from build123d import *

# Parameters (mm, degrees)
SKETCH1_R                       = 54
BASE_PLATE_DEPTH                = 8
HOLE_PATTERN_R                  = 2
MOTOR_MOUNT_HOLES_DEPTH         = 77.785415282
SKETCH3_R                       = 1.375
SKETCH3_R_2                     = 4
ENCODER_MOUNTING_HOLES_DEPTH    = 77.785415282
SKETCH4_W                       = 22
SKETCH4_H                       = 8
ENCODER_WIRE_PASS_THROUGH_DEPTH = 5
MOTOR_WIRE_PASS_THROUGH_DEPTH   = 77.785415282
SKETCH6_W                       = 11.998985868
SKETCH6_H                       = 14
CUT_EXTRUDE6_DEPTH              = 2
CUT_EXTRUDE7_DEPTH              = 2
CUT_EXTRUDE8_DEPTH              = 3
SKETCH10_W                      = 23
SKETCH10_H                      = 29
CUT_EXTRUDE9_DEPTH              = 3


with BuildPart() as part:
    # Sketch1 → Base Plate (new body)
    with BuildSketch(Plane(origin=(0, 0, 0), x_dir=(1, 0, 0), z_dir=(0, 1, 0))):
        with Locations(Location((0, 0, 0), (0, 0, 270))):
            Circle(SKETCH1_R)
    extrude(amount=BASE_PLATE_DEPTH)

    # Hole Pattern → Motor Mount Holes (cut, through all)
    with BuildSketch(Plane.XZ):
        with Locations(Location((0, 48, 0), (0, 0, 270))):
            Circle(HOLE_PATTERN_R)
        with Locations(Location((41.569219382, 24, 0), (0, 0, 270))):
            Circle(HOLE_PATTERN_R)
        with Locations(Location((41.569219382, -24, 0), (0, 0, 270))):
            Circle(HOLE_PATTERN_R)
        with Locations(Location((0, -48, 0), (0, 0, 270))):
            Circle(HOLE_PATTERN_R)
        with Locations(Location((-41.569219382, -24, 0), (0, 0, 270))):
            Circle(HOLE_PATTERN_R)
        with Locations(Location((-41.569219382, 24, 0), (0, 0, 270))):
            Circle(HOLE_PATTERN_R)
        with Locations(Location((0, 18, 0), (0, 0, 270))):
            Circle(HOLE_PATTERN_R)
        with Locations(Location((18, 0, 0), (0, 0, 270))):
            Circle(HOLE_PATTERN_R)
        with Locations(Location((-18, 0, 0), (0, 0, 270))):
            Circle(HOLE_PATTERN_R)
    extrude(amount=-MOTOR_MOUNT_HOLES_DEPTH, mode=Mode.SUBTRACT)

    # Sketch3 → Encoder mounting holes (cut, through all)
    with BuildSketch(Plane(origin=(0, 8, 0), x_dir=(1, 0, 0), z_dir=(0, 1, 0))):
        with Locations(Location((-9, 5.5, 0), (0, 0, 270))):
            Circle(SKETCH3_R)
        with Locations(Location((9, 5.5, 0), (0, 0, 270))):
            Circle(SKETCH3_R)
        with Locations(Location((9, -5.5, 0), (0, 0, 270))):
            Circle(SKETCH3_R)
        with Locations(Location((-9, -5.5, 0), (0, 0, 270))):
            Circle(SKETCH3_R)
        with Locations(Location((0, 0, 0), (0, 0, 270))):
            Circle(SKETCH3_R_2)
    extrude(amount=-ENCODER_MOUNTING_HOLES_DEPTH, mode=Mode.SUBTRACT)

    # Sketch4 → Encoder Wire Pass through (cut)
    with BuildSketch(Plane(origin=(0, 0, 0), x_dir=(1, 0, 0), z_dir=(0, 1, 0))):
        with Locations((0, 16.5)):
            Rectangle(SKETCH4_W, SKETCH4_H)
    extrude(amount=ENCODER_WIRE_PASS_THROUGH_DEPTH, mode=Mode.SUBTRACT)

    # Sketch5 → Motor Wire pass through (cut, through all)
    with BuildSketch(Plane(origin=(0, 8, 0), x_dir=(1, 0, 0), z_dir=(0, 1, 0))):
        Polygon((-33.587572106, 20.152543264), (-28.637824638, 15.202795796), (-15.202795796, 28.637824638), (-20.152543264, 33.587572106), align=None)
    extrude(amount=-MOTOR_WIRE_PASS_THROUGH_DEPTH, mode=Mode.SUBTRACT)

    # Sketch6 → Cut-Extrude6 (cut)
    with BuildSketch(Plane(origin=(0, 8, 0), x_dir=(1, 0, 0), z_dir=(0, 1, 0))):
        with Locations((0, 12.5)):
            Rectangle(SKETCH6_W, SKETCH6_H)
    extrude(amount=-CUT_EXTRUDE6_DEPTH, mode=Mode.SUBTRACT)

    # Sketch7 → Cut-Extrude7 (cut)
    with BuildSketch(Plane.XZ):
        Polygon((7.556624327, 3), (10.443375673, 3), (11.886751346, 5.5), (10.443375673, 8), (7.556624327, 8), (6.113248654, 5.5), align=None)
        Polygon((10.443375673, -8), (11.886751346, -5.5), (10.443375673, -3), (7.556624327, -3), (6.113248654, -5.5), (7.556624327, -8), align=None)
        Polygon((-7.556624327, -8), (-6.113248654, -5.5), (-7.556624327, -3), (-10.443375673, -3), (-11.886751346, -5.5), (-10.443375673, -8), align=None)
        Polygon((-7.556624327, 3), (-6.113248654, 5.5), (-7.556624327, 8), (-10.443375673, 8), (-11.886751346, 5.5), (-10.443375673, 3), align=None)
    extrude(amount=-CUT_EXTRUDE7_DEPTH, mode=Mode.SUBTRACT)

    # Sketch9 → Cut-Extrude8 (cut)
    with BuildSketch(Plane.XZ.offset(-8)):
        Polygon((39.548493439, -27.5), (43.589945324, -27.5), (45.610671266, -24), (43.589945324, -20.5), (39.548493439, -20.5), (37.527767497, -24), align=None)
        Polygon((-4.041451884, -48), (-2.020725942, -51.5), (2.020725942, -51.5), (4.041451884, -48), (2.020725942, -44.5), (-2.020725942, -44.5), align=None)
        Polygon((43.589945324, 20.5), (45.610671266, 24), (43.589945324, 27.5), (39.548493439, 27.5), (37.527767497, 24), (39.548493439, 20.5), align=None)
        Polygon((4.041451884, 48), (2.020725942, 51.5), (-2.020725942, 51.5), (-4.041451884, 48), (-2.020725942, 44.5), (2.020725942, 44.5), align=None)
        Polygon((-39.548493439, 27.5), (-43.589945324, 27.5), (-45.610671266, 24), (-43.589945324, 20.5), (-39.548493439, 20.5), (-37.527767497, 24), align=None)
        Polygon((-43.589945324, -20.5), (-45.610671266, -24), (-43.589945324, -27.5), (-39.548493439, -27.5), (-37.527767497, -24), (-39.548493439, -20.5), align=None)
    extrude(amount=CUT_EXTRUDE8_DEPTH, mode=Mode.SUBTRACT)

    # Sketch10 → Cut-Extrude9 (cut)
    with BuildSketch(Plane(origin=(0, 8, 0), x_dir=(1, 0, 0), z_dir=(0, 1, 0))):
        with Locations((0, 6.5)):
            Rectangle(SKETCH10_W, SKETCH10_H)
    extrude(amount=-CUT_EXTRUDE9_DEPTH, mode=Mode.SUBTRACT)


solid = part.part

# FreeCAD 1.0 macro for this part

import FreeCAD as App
import Part
import Sketcher
Q = App.Units.Quantity


def add_polygon(sketch, points):
    """Adds a closed chain of lines whose ends are joined by coincident constraints."""
    first, n = sketch.GeometryCount, len(points)
    for a, b in zip(points, points[1:] + points[:1]):
        sketch.addGeometry(Part.LineSegment(App.Vector(*a, 0), App.Vector(*b, 0)), False)
    for i in range(n):
        sketch.addConstraint(Sketcher.Constraint("Coincident", first + i, 2, first + (i + 1) % n, 1))

doc = App.newDocument("Part")
body = doc.addObject("PartDesign::Body", "Body")

# Sketch on XZ plane
sketch1 = body.newObject("Sketcher::SketchObject", "Sketch")
sketch1.AttachmentSupport = (doc.getObject("XZ_Plane"), [""])
sketch1.MapMode = "FlatFace"
sketch1.addGeometry(Part.Circle(App.Vector(0, 0, 0), App.Vector(0, 0, 1), 54), False)
sketch1.addConstraint(Sketcher.Constraint("Coincident", 0, 3, -1, 1))
sketch1.addConstraint(Sketcher.Constraint("Diameter", 0, Q("108 mm")))
pad1 = body.newObject("PartDesign::Pad", "Pad")
pad1.Profile = sketch1
pad1.Length = 8
pad1.Reversed = True

# Sketch on XZ plane
sketch2 = body.newObject("Sketcher::SketchObject", "Sketch001")
sketch2.AttachmentSupport = (doc.getObject("XZ_Plane"), [""])
sketch2.MapMode = "FlatFace"
sketch2.addGeometry(Part.Circle(App.Vector(0, 48, 0), App.Vector(0, 0, 1), 2), False)
sketch2.addGeometry(Part.Circle(App.Vector(41.6, 24, 0), App.Vector(0, 0, 1), 2), False)
sketch2.addGeometry(Part.Circle(App.Vector(41.6, -24, 0), App.Vector(0, 0, 1), 2), False)
sketch2.addGeometry(Part.Circle(App.Vector(0, -48, 0), App.Vector(0, 0, 1), 2), False)
sketch2.addGeometry(Part.Circle(App.Vector(-41.6, -24, 0), App.Vector(0, 0, 1), 2), False)
sketch2.addGeometry(Part.Circle(App.Vector(-41.6, 24, 0), App.Vector(0, 0, 1), 2), False)
sketch2.addGeometry(Part.Circle(App.Vector(0, 18, 0), App.Vector(0, 0, 1), 2), False)
sketch2.addGeometry(Part.Circle(App.Vector(18, 0, 0), App.Vector(0, 0, 1), 2), False)
sketch2.addGeometry(Part.Circle(App.Vector(-18, 0, 0), App.Vector(0, 0, 1), 2), False)
sketch2.addConstraint(Sketcher.Constraint("Equal", 0, 1))
sketch2.addConstraint(Sketcher.Constraint("Equal", 1, 2))
sketch2.addConstraint(Sketcher.Constraint("Equal", 2, 3))
sketch2.addConstraint(Sketcher.Constraint("Equal", 3, 4))
sketch2.addConstraint(Sketcher.Constraint("Equal", 4, 5))
sketch2.addConstraint(Sketcher.Constraint("Equal", 5, 6))
sketch2.addConstraint(Sketcher.Constraint("Equal", 6, 7))
sketch2.addConstraint(Sketcher.Constraint("Equal", 7, 8))
sketch2.addConstraint(Sketcher.Constraint("Symmetric", 0, 3, 3, 3, -1, 1))
sketch2.addConstraint(Sketcher.Constraint("Symmetric", 1, 3, 4, 3, -1, 1))
sketch2.addConstraint(Sketcher.Constraint("Symmetric", 2, 3, 5, 3, -1, 1))
sketch2.addConstraint(Sketcher.Constraint("Symmetric", 7, 3, 8, 3, -1, 1))
sketch2.addConstraint(Sketcher.Constraint("Symmetric", 2, 3, 4, 3, -2))
sketch2.addConstraint(Sketcher.Constraint("PointOnObject", 0, 3, -2))
sketch2.addConstraint(Sketcher.Constraint("PointOnObject", 6, 3, -2))
sketch2.addConstraint(Sketcher.Constraint("PointOnObject", 7, 3, -1))
sketch2.addConstraint(Sketcher.Constraint("Diameter", 0, Q("4 mm")))
sketch2.addConstraint(Sketcher.Constraint("DistanceY", -1, 1, 0, 3, Q("48 mm")))
sketch2.addConstraint(Sketcher.Constraint("DistanceY", -1, 1, 1, 3, Q("24 mm")))
sketch2.addConstraint(Sketcher.Constraint("DistanceY", -1, 1, 6, 3, Q("18 mm")))
sketch2.addConstraint(Sketcher.Constraint("DistanceX", -1, 1, 7, 3, Q("18 mm")))
sketch2.addConstraint(Sketcher.Constraint("DistanceX", -1, 1, 1, 3, Q("41.569219 mm")))
pocket1 = body.newObject("PartDesign::Pocket", "Pocket")
pocket1.Profile = sketch2
pocket1.Type = "ThroughAll"

# Sketch on XZ plane
sketch3 = body.newObject("Sketcher::SketchObject", "Sketch002")
sketch3.AttachmentSupport = (doc.getObject("XZ_Plane"), [""])
sketch3.MapMode = "FlatFace"
sketch3.AttachmentOffset = App.Placement(App.Vector(0, 0, -8), App.Rotation())
sketch3.addGeometry(Part.Circle(App.Vector(-9, -5.5, 0), App.Vector(0, 0, 1), 1.4), False)
sketch3.addGeometry(Part.Circle(App.Vector(9, -5.5, 0), App.Vector(0, 0, 1), 1.4), False)
sketch3.addGeometry(Part.Circle(App.Vector(9, 5.5, 0), App.Vector(0, 0, 1), 1.4), False)
sketch3.addGeometry(Part.Circle(App.Vector(-9, 5.5, 0), App.Vector(0, 0, 1), 1.4), False)
sketch3.addGeometry(Part.Circle(App.Vector(0, 0, 0), App.Vector(0, 0, 1), 4), False)
sketch3.addConstraint(Sketcher.Constraint("Coincident", 4, 3, -1, 1))
sketch3.addConstraint(Sketcher.Constraint("Equal", 0, 1))
sketch3.addConstraint(Sketcher.Constraint("Equal", 1, 2))
sketch3.addConstraint(Sketcher.Constraint("Equal", 2, 3))
sketch3.addConstraint(Sketcher.Constraint("Symmetric", 0, 3, 2, 3, -1, 1))
sketch3.addConstraint(Sketcher.Constraint("Symmetric", 1, 3, 3, 3, -1, 1))
sketch3.addConstraint(Sketcher.Constraint("Symmetric", 0, 3, 1, 3, -2))
sketch3.addConstraint(Sketcher.Constraint("Diameter", 4, Q("8 mm")))
sketch3.addConstraint(Sketcher.Constraint("Diameter", 0, Q("2.75 mm")))
sketch3.addConstraint(Sketcher.Constraint("DistanceX", 0, 3, -1, 1, Q("9 mm")))
sketch3.addConstraint(Sketcher.Constraint("DistanceY", 1, 3, 2, 3, Q("11 mm")))
pocket2 = body.newObject("PartDesign::Pocket", "Pocket001")
pocket2.Profile = sketch3
pocket2.Type = "ThroughAll"
pocket2.Reversed = True

# Sketch on XZ plane
sketch4 = body.newObject("Sketcher::SketchObject", "Sketch003")
sketch4.AttachmentSupport = (doc.getObject("XZ_Plane"), [""])
sketch4.MapMode = "FlatFace"
add_polygon(sketch4, [(-11, -20), (-11, -12), (11, -12), (11, -20)])  # lines 0-3
sketch4.addConstraint(Sketcher.Constraint("Vertical", 0))
sketch4.addConstraint(Sketcher.Constraint("Horizontal", 1))
sketch4.addConstraint(Sketcher.Constraint("Vertical", 2))
sketch4.addConstraint(Sketcher.Constraint("Horizontal", 3))
sketch4.addConstraint(Sketcher.Constraint("DistanceX", 1, 1, 1, 2, Q("22 mm")))
sketch4.addConstraint(Sketcher.Constraint("DistanceY", 0, 1, 0, 2, Q("8 mm")))
sketch4.addConstraint(Sketcher.Constraint("DistanceX", 0, 2, -1, 1, Q("11 mm")))
sketch4.addConstraint(Sketcher.Constraint("DistanceY", 0, 2, -1, 1, Q("12.5 mm")))
pocket3 = body.newObject("PartDesign::Pocket", "Pocket002")
pocket3.Profile = sketch4
pocket3.Length = 5

# Sketch on XZ plane
sketch5 = body.newObject("Sketcher::SketchObject", "Sketch004")
sketch5.AttachmentSupport = (doc.getObject("XZ_Plane"), [""])
sketch5.MapMode = "FlatFace"
sketch5.AttachmentOffset = App.Placement(App.Vector(0, 0, -8), App.Rotation())
add_polygon(sketch5, [(-34, -20), (-29, -15), (-15, -29), (-20, -34)])  # lines 0-3
sketch5.addConstraint(Sketcher.Constraint("Perpendicular", 0, 1))
sketch5.addConstraint(Sketcher.Constraint("Perpendicular", 1, 2))
sketch5.addConstraint(Sketcher.Constraint("Perpendicular", 2, 3))
sketch5.addConstraint(Sketcher.Constraint("Angle", 0, Q("45 deg")))
sketch5.addConstraint(Sketcher.Constraint("Distance", 0, Q("7 mm")))
sketch5.addConstraint(Sketcher.Constraint("Distance", 1, Q("19 mm")))
sketch5.addConstraint(Sketcher.Constraint("DistanceX", 0, 2, -1, 1, Q("28.637825 mm")))
sketch5.addConstraint(Sketcher.Constraint("DistanceY", 0, 2, -1, 1, Q("15.202796 mm")))
pocket4 = body.newObject("PartDesign::Pocket", "Pocket003")
pocket4.Profile = sketch5
pocket4.Type = "ThroughAll"
pocket4.Reversed = True

# Sketch on XZ plane
sketch6 = body.newObject("Sketcher::SketchObject", "Sketch005")
sketch6.AttachmentSupport = (doc.getObject("XZ_Plane"), [""])
sketch6.MapMode = "FlatFace"
sketch6.AttachmentOffset = App.Placement(App.Vector(0, 0, -8), App.Rotation())
add_polygon(sketch6, [(-6, -20), (-6, -6), (6, -6), (6, -20)])  # lines 0-3
sketch6.addConstraint(Sketcher.Constraint("Vertical", 0))
sketch6.addConstraint(Sketcher.Constraint("Horizontal", 1))
sketch6.addConstraint(Sketcher.Constraint("Vertical", 2))
sketch6.addConstraint(Sketcher.Constraint("Horizontal", 3))
sketch6.addConstraint(Sketcher.Constraint("DistanceY", 0, 1, 0, 2, Q("14 mm")))
sketch6.addConstraint(Sketcher.Constraint("DistanceY", 0, 2, -1, 1, Q("5.5 mm")))
sketch6.addConstraint(Sketcher.Constraint("DistanceX", 1, 1, 1, 2, Q("11.998986 mm")))
sketch6.addConstraint(Sketcher.Constraint("DistanceX", 0, 2, -1, 1, Q("5.999493 mm")))
pocket5 = body.newObject("PartDesign::Pocket", "Pocket004")
pocket5.Profile = sketch6
pocket5.Length = 2
pocket5.Reversed = True

# Sketch on XZ plane
sketch7 = body.newObject("Sketcher::SketchObject", "Sketch006")
sketch7.AttachmentSupport = (doc.getObject("XZ_Plane"), [""])
sketch7.MapMode = "FlatFace"
add_polygon(sketch7, [(7.6, 3), (10.4, 3), (11.9, 5.5), (10.4, 8), (7.6, 8), (6.1, 5.5)])  # lines 0-5
add_polygon(sketch7, [(10.4, -8), (11.9, -5.5), (10.4, -3), (7.6, -3), (6.1, -5.5), (7.6, -8)])  # lines 6-11
add_polygon(sketch7, [(-7.6, -8), (-6.1, -5.5), (-7.6, -3), (-10.4, -3), (-11.9, -5.5), (-10.4, -8)])  # lines 12-17
add_polygon(sketch7, [(-7.6, 3), (-6.1, 5.5), (-7.6, 8), (-10.4, 8), (-11.9, 5.5), (-10.4, 3)])  # lines 18-23
sketch7.addConstraint(Sketcher.Constraint("Horizontal", 0))
sketch7.addConstraint(Sketcher.Constraint("Horizontal", 3))
sketch7.addConstraint(Sketcher.Constraint("Horizontal", 8))
sketch7.addConstraint(Sketcher.Constraint("Horizontal", 11))
sketch7.addConstraint(Sketcher.Constraint("Horizontal", 14))
sketch7.addConstraint(Sketcher.Constraint("Horizontal", 17))
sketch7.addConstraint(Sketcher.Constraint("Horizontal", 20))
sketch7.addConstraint(Sketcher.Constraint("Horizontal", 23))
sketch7.addConstraint(Sketcher.Constraint("Symmetric", 4, 2, 12, 2, -1, 1))
sketch7.addConstraint(Sketcher.Constraint("Symmetric", 5, 2, 13, 2, -1, 1))
sketch7.addConstraint(Sketcher.Constraint("Symmetric", 1, 2, 15, 2, -1, 1))
sketch7.addConstraint(Sketcher.Constraint("Symmetric", 2, 2, 16, 2, -1, 1))
sketch7.addConstraint(Sketcher.Constraint("Symmetric", 9, 2, 18, 2, -1, 1))
sketch7.addConstraint(Sketcher.Constraint("Symmetric", 10, 2, 19, 2, -1, 1))
sketch7.addConstraint(Sketcher.Constraint("Symmetric", 6, 2, 21, 2, -1, 1))
sketch7.addConstraint(Sketcher.Constraint("Symmetric", 7, 2, 22, 2, -1, 1))
sketch7.addConstraint(Sketcher.Constraint("Symmetric", 9, 2, 12, 2, -2))
sketch7.addConstraint(Sketcher.Constraint("Symmetric", 8, 2, 13, 2, -2))
sketch7.addConstraint(Sketcher.Constraint("Symmetric", 6, 2, 15, 2, -2))
sketch7.addConstraint(Sketcher.Constraint("Symmetric", 11, 2, 16, 2, -2))
sketch7.addConstraint(Sketcher.Constraint("Parallel", 1, 4))
sketch7.addConstraint(Sketcher.Constraint("Parallel", 2, 5))
sketch7.addConstraint(Sketcher.Constraint("Parallel", 4, 6))
sketch7.addConstraint(Sketcher.Constraint("Parallel", 5, 7))
sketch7.addConstraint(Sketcher.Constraint("Parallel", 7, 10))
sketch7.addConstraint(Sketcher.Constraint("Parallel", 9, 12))
sketch7.addConstraint(Sketcher.Constraint("Parallel", 12, 15))
sketch7.addConstraint(Sketcher.Constraint("Parallel", 15, 18))
sketch7.addConstraint(Sketcher.Constraint("Parallel", 18, 21))
sketch7.addConstraint(Sketcher.Constraint("Horizontal", 1, 2, 4, 2))
sketch7.addConstraint(Sketcher.Constraint("Vertical", 0, 2, 2, 2))
sketch7.addConstraint(Sketcher.Constraint("Angle", 1, Q("60 deg")))
sketch7.addConstraint(Sketcher.Constraint("DistanceY", -1, 1, 0, 2, Q("3 mm")))
sketch7.addConstraint(Sketcher.Constraint("DistanceY", -1, 1, 2, 2, Q("8 mm")))
sketch7.addConstraint(Sketcher.Constraint("DistanceX", 14, 2, 8, 2, Q("18 mm")))
sketch7.addConstraint(Sketcher.Constraint("DistanceX", 0, 1, 0, 2, Q("2.886751 mm")))
pocket6 = body.newObject("PartDesign::Pocket", "Pocket005")
pocket6.Profile = sketch7
pocket6.Length = 2

# Sketch on XZ plane
sketch8 = body.newObject("Sketcher::SketchObject", "Sketch007")
sketch8.AttachmentSupport = (doc.getObject("XZ_Plane"), [""])
sketch8.MapMode = "FlatFace"
sketch8.AttachmentOffset = App.Placement(App.Vector(0, 0, -8), App.Rotation())
add_polygon(sketch8, [(39.5, -27.5), (43.6, -27.5), (45.6, -24), (43.6, -20.5), (39.5, -20.5), (37.5, -24)])  # lines 0-5
add_polygon(sketch8, [(-4, -48), (-2, -51.5), (2, -51.5), (4, -48), (2, -44.5), (-2, -44.5)])  # lines 6-11
add_polygon(sketch8, [(43.6, 20.5), (45.6, 24), (43.6, 27.5), (39.5, 27.5), (37.5, 24), (39.5, 20.5)])  # lines 12-17
add_polygon(sketch8, [(4, 48), (2, 51.5), (-2, 51.5), (-4, 48), (-2, 44.5), (2, 44.5)])  # lines 18-23
add_polygon(sketch8, [(-39.5, 27.5), (-43.6, 27.5), (-45.6, 24), (-43.6, 20.5), (-39.5, 20.5), (-37.5, 24)])  # lines 24-29
add_polygon(sketch8, [(-43.6, -20.5), (-45.6, -24), (-43.6, -27.5), (-39.5, -27.5), (-37.5, -24), (-39.5, -20.5)])  # lines 30-35
sketch8.addConstraint(Sketcher.Constraint("Horizontal", 0))
sketch8.addConstraint(Sketcher.Constraint("Horizontal", 3))
sketch8.addConstraint(Sketcher.Constraint("Horizontal", 7))
sketch8.addConstraint(Sketcher.Constraint("Horizontal", 10))
sketch8.addConstraint(Sketcher.Constraint("Horizontal", 14))
sketch8.addConstraint(Sketcher.Constraint("Horizontal", 17))
sketch8.addConstraint(Sketcher.Constraint("Horizontal", 19))
sketch8.addConstraint(Sketcher.Constraint("Horizontal", 22))
sketch8.addConstraint(Sketcher.Constraint("Horizontal", 24))
sketch8.addConstraint(Sketcher.Constraint("Horizontal", 27))
sketch8.addConstraint(Sketcher.Constraint("Horizontal", 32))
sketch8.addConstraint(Sketcher.Constraint("Horizontal", 35))
sketch8.addConstraint(Sketcher.Constraint("Symmetric", 6, 2, 18, 2, -1, 1))
sketch8.addConstraint(Sketcher.Constraint("Symmetric", 8, 2, 20, 2, -1, 1))
sketch8.addConstraint(Sketcher.Constraint("Symmetric", 9, 2, 21, 2, -1, 1))
sketch8.addConstraint(Sketcher.Constraint("Symmetric", 11, 2, 23, 2, -1, 1))
sketch8.addConstraint(Sketcher.Constraint("Symmetric", 0, 2, 24, 2, -1, 1))
sketch8.addConstraint(Sketcher.Constraint("Symmetric", 1, 2, 25, 2, -1, 1))
sketch8.addConstraint(Sketcher.Constraint("Symmetric", 2, 2, 26, 2, -1, 1))
sketch8.addConstraint(Sketcher.Constraint("Symmetric", 4, 2, 28, 2, -1, 1))
sketch8.addConstraint(Sketcher.Constraint("Symmetric", 12, 2, 30, 2, -1, 1))
sketch8.addConstraint(Sketcher.Constraint("Symmetric", 13, 2, 31, 2, -1, 1))
sketch8.addConstraint(Sketcher.Constraint("Symmetric", 15, 2, 33, 2, -1, 1))
sketch8.addConstraint(Sketcher.Constraint("Symmetric", 16, 2, 34, 2, -1, 1))
sketch8.addConstraint(Sketcher.Constraint("Symmetric", 8, 2, 11, 2, -2))
sketch8.addConstraint(Sketcher.Constraint("Symmetric", 13, 2, 24, 2, -2))
sketch8.addConstraint(Sketcher.Constraint("Symmetric", 12, 2, 25, 2, -2))
sketch8.addConstraint(Sketcher.Constraint("Symmetric", 17, 2, 26, 2, -2))
sketch8.addConstraint(Sketcher.Constraint("Symmetric", 15, 2, 28, 2, -2))
sketch8.addConstraint(Sketcher.Constraint("Parallel", 1, 4))
sketch8.addConstraint(Sketcher.Constraint("Parallel", 2, 5))
sketch8.addConstraint(Sketcher.Constraint("Parallel", 5, 6))
sketch8.addConstraint(Sketcher.Constraint("Parallel", 4, 8))
sketch8.addConstraint(Sketcher.Constraint("Parallel", 6, 9))
sketch8.addConstraint(Sketcher.Constraint("Parallel", 8, 11))
sketch8.addConstraint(Sketcher.Constraint("Parallel", 11, 12))
sketch8.addConstraint(Sketcher.Constraint("Parallel", 12, 15))
sketch8.addConstraint(Sketcher.Constraint("Parallel", 13, 16))
sketch8.addConstraint(Sketcher.Constraint("Parallel", 15, 20))
sketch8.addConstraint(Sketcher.Constraint("Parallel", 20, 23))
sketch8.addConstraint(Sketcher.Constraint("Parallel", 25, 28))
sketch8.addConstraint(Sketcher.Constraint("Parallel", 26, 29))
sketch8.addConstraint(Sketcher.Constraint("Parallel", 28, 30))
sketch8.addConstraint(Sketcher.Constraint("Parallel", 30, 33))
sketch8.addConstraint(Sketcher.Constraint("Horizontal", 1, 2, 4, 2))
sketch8.addConstraint(Sketcher.Constraint("Vertical", 0, 2, 2, 2))
sketch8.addConstraint(Sketcher.Constraint("Vertical", 7, 2, 9, 2))
sketch8.addConstraint(Sketcher.Constraint("Equal", 3, 7))
sketch8.addConstraint(Sketcher.Constraint("Equal", 5, 6))
sketch8.addConstraint(Sketcher.Constraint("Angle", 1, Q("60 deg")))
sketch8.addConstraint(Sketcher.Constraint("DistanceY", 1, 2, -1, 1, Q("24 mm")))
sketch8.addConstraint(Sketcher.Constraint("DistanceY", 8, 2, -1, 1, Q("48 mm")))
sketch8.addConstraint(Sketcher.Constraint("DistanceY", 0, 2, 2, 2, Q("7 mm")))
sketch8.addConstraint(Sketcher.Constraint("DistanceX", 0, 1, 0, 2, Q("4.041452 mm")))
sketch8.addConstraint(Sketcher.Constraint("DistanceX", -1, 1, 1, 2, Q("45.610671 mm")))
pocket7 = body.newObject("PartDesign::Pocket", "Pocket006")
pocket7.Profile = sketch8
pocket7.Length = 3
pocket7.Reversed = True

# Sketch on XZ plane
sketch9 = body.newObject("Sketcher::SketchObject", "Sketch008")
sketch9.AttachmentSupport = (doc.getObject("XZ_Plane"), [""])
sketch9.MapMode = "FlatFace"
sketch9.AttachmentOffset = App.Placement(App.Vector(0, 0, -8), App.Rotation())
add_polygon(sketch9, [(-12, -21), (-12, 8), (12, 8), (12, -21)])  # lines 0-3
sketch9.addConstraint(Sketcher.Constraint("Vertical", 0))
sketch9.addConstraint(Sketcher.Constraint("Horizontal", 1))
sketch9.addConstraint(Sketcher.Constraint("Vertical", 2))
sketch9.addConstraint(Sketcher.Constraint("Horizontal", 3))
sketch9.addConstraint(Sketcher.Constraint("DistanceX", 1, 1, 1, 2, Q("23 mm")))
sketch9.addConstraint(Sketcher.Constraint("DistanceY", 0, 1, 0, 2, Q("29 mm")))
sketch9.addConstraint(Sketcher.Constraint("DistanceY", -1, 1, 0, 2, Q("8 mm")))
sketch9.addConstraint(Sketcher.Constraint("DistanceX", 0, 2, -1, 1, Q("11.5 mm")))
pocket8 = body.newObject("PartDesign::Pocket", "Pocket007")
pocket8.Profile = sketch9
pocket8.Length = 3
pocket8.Reversed = True

doc.recompute()
